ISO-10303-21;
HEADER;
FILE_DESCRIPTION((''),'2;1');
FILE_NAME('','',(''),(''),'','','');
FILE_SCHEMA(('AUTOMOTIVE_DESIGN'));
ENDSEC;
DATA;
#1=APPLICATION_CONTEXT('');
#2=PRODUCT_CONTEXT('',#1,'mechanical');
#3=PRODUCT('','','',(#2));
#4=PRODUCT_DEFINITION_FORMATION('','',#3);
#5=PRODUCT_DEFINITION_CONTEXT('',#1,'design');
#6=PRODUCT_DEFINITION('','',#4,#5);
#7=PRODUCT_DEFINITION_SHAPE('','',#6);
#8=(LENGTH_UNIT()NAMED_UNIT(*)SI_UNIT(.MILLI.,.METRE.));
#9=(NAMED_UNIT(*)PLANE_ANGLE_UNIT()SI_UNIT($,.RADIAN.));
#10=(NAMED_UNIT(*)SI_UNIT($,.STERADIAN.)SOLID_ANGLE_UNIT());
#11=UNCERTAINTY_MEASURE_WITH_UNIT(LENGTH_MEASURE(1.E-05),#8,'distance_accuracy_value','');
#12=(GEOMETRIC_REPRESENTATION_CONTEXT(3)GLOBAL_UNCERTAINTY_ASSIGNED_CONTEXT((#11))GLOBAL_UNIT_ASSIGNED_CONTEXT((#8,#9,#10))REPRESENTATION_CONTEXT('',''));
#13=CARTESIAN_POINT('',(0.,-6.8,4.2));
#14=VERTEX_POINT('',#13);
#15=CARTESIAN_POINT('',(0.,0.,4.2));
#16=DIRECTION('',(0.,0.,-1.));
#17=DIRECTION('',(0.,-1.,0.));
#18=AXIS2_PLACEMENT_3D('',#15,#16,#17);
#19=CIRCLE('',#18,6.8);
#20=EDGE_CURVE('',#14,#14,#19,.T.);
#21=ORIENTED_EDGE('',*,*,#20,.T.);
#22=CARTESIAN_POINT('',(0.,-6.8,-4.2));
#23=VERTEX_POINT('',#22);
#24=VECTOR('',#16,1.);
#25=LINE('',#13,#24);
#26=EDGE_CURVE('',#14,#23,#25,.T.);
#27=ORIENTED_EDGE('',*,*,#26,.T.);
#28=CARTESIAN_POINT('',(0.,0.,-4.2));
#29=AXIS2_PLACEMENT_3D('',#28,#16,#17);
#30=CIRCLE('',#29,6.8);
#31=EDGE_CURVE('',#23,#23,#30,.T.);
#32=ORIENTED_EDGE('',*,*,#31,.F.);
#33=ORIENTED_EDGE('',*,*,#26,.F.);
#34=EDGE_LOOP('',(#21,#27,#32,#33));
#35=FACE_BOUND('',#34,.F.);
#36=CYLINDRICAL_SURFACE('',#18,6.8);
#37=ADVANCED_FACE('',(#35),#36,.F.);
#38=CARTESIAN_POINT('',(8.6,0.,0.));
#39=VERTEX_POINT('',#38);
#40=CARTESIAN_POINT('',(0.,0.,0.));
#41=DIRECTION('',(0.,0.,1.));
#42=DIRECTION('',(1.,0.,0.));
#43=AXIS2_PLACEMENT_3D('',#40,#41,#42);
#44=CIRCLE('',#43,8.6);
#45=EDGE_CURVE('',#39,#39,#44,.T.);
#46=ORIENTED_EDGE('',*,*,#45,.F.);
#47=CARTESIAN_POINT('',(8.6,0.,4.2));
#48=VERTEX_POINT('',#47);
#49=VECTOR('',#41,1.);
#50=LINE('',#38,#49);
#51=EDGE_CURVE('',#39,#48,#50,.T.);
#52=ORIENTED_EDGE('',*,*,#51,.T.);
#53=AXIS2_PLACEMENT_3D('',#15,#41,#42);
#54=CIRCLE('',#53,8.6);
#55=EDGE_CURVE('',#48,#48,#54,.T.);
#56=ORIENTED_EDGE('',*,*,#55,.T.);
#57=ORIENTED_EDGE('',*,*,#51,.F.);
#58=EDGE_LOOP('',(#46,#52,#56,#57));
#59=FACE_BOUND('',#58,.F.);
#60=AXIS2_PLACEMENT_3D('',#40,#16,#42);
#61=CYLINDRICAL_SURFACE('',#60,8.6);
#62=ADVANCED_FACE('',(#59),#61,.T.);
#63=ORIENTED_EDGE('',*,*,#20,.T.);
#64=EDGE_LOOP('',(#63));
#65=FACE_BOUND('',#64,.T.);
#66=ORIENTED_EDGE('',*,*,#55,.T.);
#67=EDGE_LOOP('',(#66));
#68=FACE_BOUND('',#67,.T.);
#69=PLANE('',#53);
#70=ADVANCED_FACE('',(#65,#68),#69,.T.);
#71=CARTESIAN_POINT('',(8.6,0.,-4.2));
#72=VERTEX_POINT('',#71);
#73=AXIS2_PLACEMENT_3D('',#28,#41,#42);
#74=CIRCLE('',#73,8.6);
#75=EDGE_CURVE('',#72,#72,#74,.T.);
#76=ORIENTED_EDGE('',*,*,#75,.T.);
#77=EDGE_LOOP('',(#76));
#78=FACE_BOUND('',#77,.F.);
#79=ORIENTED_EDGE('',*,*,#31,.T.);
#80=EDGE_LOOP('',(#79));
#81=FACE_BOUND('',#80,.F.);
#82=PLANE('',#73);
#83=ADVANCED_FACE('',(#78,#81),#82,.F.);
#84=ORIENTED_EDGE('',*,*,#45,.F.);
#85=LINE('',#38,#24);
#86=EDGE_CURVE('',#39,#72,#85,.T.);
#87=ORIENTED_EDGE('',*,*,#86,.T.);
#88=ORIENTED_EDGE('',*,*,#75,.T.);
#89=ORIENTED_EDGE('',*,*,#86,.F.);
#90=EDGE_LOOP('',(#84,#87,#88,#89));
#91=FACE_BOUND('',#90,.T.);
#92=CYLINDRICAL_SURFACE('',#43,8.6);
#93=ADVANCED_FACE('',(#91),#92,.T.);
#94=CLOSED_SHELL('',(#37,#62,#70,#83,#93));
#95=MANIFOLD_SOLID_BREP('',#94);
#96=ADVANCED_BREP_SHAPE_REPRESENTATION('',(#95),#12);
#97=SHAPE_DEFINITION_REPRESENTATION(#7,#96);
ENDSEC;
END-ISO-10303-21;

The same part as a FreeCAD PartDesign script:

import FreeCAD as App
import Part
import Sketcher
from FreeCAD import Vector
Q = App.Units.Quantity

doc = App.newDocument("Part")
body = doc.addObject("PartDesign::Body", "Body")

# Sketch on XY plane
sketch1 = body.newObject("Sketcher::SketchObject", "Sketch")
sketch1.AttachmentSupport = (doc.getObject("XY_Plane"), [""])
sketch1.MapMode = "FlatFace"
sketch1.addGeometry(Part.Circle(Vector(0, 0, 0), Vector(0, 0, 1), 9), False)
sketch1.addConstraint([
    Sketcher.Constraint("Coincident", 0, 3, -1, 1),
    Sketcher.Constraint("Diameter", 0, Q("17.2 mm")),
])
pad1 = body.newObject("PartDesign::Pad", "Pad")
pad1.Profile = sketch1
pad1.Length = 8.4
pad1.Midplane = True

# Sketch on XY plane
sketch2 = body.newObject("Sketcher::SketchObject", "Sketch001")
sketch2.AttachmentSupport = (doc.getObject("XY_Plane"), [""])
sketch2.MapMode = "FlatFace"
sketch2.AttachmentOffset = App.Placement(Vector(0, 0, 4.2), App.Rotation())
sketch2.addGeometry(Part.Circle(Vector(0, 0, 0), Vector(0, 0, 1), 7), False)
sketch2.addConstraint([
    Sketcher.Constraint("Coincident", 0, 3, -1, 1),
    Sketcher.Constraint("Diameter", 0, Q("13.6 mm")),
])
doc.recompute()
hole = body.newObject("PartDesign::Hole", "Hole")
hole.Profile = sketch2
hole.ThreadType = "None"
hole.Diameter = 13.6
hole.DepthType = "ThroughAll"

doc.recompute()
